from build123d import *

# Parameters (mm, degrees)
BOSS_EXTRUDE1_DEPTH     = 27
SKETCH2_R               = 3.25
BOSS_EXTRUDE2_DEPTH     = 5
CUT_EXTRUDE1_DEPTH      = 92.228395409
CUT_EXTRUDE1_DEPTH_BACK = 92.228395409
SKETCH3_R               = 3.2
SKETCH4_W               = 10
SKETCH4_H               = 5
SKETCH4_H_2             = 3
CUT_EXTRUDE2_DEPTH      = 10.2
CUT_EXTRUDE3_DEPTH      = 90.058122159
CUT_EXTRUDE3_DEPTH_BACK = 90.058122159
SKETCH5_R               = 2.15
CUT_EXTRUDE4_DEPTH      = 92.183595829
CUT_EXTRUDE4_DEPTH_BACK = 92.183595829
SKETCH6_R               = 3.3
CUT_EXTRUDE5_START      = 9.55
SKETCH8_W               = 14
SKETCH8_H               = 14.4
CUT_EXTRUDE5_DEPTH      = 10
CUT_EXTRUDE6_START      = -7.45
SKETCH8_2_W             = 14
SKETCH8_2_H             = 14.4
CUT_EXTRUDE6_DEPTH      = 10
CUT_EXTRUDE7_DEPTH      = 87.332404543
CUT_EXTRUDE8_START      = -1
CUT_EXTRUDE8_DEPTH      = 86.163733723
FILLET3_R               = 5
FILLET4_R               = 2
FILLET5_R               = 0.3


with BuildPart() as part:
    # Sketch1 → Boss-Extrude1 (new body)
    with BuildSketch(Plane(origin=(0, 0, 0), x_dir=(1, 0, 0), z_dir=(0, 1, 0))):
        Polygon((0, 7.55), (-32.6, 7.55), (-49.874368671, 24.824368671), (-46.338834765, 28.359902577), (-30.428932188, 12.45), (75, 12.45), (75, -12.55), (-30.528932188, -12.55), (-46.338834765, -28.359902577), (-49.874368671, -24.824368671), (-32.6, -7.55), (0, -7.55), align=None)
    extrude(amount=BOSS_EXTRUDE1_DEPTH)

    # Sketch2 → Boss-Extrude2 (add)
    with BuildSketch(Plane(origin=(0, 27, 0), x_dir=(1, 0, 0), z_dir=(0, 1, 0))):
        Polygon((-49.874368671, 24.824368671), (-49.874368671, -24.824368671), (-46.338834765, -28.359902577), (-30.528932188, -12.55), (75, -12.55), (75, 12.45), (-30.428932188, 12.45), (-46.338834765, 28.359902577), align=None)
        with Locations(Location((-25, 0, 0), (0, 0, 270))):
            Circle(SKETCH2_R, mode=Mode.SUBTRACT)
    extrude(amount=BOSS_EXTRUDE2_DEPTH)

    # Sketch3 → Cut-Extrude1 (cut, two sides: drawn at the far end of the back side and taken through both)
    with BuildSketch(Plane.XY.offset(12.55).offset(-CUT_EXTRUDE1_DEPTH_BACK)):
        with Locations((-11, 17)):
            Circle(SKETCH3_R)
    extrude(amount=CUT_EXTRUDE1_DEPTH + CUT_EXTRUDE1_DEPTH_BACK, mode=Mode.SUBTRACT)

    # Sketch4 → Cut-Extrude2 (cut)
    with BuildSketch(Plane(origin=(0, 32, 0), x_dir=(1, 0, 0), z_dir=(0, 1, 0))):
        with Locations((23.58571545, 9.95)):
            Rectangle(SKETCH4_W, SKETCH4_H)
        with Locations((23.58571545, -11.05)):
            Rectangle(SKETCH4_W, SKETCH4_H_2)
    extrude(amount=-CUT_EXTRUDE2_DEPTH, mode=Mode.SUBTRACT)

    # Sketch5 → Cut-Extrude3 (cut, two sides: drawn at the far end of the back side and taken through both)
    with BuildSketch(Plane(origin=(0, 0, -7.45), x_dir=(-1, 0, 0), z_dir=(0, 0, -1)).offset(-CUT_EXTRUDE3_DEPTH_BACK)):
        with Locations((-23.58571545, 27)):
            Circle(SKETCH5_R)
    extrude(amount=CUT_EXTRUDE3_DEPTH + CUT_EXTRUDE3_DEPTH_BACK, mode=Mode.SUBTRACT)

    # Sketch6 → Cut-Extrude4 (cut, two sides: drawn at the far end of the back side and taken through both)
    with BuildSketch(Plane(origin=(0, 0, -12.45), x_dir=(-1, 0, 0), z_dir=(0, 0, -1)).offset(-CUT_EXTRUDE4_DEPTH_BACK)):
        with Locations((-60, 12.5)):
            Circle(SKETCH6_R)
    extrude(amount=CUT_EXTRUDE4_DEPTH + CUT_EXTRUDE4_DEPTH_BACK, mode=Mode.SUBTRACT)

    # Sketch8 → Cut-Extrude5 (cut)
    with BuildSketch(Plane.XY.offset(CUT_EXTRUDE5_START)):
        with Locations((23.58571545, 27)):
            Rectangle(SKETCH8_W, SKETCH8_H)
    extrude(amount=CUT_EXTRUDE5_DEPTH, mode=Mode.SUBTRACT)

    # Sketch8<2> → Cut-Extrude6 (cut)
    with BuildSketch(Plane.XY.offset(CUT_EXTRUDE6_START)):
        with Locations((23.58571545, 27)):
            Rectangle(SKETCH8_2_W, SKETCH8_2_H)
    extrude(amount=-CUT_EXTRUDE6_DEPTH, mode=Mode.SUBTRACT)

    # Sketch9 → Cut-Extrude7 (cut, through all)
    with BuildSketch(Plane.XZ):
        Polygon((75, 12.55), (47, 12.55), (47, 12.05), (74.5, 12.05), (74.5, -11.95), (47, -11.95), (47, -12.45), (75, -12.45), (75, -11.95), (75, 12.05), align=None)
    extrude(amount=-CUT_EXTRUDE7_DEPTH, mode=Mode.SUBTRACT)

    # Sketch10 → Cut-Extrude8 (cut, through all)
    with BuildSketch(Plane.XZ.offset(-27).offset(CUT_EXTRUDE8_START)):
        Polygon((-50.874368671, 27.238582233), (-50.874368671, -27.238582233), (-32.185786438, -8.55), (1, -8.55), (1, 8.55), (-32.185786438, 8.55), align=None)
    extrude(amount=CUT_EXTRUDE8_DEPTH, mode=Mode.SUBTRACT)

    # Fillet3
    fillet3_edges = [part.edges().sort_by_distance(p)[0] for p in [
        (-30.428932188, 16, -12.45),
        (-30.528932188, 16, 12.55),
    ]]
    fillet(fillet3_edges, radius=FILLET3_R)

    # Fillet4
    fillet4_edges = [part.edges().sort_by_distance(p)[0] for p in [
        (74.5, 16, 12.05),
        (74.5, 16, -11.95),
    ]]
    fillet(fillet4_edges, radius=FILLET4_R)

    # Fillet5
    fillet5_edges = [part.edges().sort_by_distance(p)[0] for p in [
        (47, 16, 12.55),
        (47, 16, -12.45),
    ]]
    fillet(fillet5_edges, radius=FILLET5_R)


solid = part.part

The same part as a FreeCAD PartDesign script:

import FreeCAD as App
import Part
import Sketcher

V = App.Vector


def edges_at(feature, points):
    """Names of the edges that pass closest to the given points."""
    edges = feature.Shape.Edges
    near = lambda p: min(range(len(edges)), key=lambda i: edges[i].distToShape(Part.Vertex(*p))[0])
    return sorted({f"Edge{near(p) + 1}" for p in points})


def add_polygon(sketch, points):
    """Adds a closed chain of lines whose ends are joined by coincident constraints."""
    first, n = sketch.GeometryCount, len(points)
    for a, b in zip(points, points[1:] + points[:1]):
        sketch.addGeometry(Part.LineSegment(App.Vector(*a, 0), App.Vector(*b, 0)), False)
    for i in range(n):
        sketch.addConstraint(Sketcher.Constraint("Coincident", first + i, 2, first + (i + 1) % n, 1))

doc = App.newDocument("Part")
body = doc.addObject("PartDesign::Body", "Body")

# Sketch on XZ plane
sketch1 = body.newObject("Sketcher::SketchObject", "Sketch")
sketch1.AttachmentSupport = (doc.getObject("XZ_Plane"), [""])
sketch1.MapMode = "FlatFace"
add_polygon(sketch1, [(-33, -8), (0, -8), (0, 8), (-33, 8), (-50, 25), (-46, 28), (-31, 13), (75, 13), (75, -12), (-30, -12), (-46, -28), (-50, -25)])  # lines 0-11
sketch1.addConstraint([
    Sketcher.Constraint("Horizontal", 0),
    Sketcher.Constraint("Vertical", 1),
    Sketcher.Constraint("Horizontal", 2),
    Sketcher.Constraint("Horizontal", 6),
    Sketcher.Constraint("Vertical", 7),
    Sketcher.Constraint("Horizontal", 8),
    Sketcher.Constraint("Symmetric", 0, 2, 1, 2, -1, 1),
    Sketcher.Constraint("Symmetric", 4, 2, 9, 2, -1),
    Sketcher.Constraint("Symmetric", 3, 2, 10, 2, -1),
    Sketcher.Constraint("Perpendicular", 3, 4),
    Sketcher.Constraint("Perpendicular", 4, 5),
    Sketcher.Constraint("Perpendicular", 5, 9),
    Sketcher.Constraint("Perpendicular", 9, 10),
    Sketcher.Constraint("Perpendicular", 10, 11),
    Sketcher.Constraint("DistanceY", 7, 2, 7, 1, 25.0),
    Sketcher.Constraint("Distance", 4, 5.0),
    Sketcher.Constraint("DistanceX", 0, 1, 0, 2, 32.6),
    Sketcher.Constraint("DistanceY", 1, 1, 1, 2, 15.1),
    Sketcher.Constraint("DistanceX", -1, 1, 6, 2, 75.0),
    Sketcher.Constraint("DistanceY", 2, 2, 5, 2, 5.0),
    Sketcher.Constraint("Distance", 9, 22.5),
])
pad1 = body.newObject("PartDesign::Pad", "Pad")
pad1.Profile = sketch1
pad1.Length = 27
pad1.Reversed = True

# Sketch on XZ plane
sketch2 = body.newObject("Sketcher::SketchObject", "Sketch001")
sketch2.AttachmentSupport = (doc.getObject("XZ_Plane"), [""])
sketch2.MapMode = "FlatFace"
sketch2.AttachmentOffset = App.Placement(V(0, 0, -27), App.Rotation())
add_polygon(sketch2, [(-49.9, -24.8), (-49.9, 24.8), (-46.3, 28.4), (-30.5, 12.6), (75, 12.6), (75, -12.4), (-30.4, -12.4), (-46.3, -28.4)])  # lines 0-7
sketch2.addGeometry(Part.Circle(V(-25, 0, 0), V(0, 0, 1), 3.2), False)  # 8
sketch2.addConstraint([
    Sketcher.Constraint("Vertical", 0),
    Sketcher.Constraint("Horizontal", 3),
    Sketcher.Constraint("Vertical", 4),
    Sketcher.Constraint("Horizontal", 5),
    Sketcher.Constraint("Symmetric", 1, 2, 6, 2, -1),
    Sketcher.Constraint("PointOnObject", 8, 3, -1),
    Sketcher.Constraint("Perpendicular", 1, 2),
    Sketcher.Constraint("Perpendicular", 2, 6),
    Sketcher.Constraint("Perpendicular", 6, 7),
    Sketcher.Constraint("Equal", 1, 7),
    Sketcher.Constraint("Diameter", 8, 6.5),
    Sketcher.Constraint("DistanceY", 4, 2, 4, 1, 25.0),
    Sketcher.Constraint("Distance", 1, 5.0),
    Sketcher.Constraint("DistanceX", 8, 3, -1, 1, 25.0),
    Sketcher.Constraint("DistanceX", -1, 1, 3, 2, 75.0),
    Sketcher.Constraint("Distance", 6, 22.5),
    Sketcher.Constraint("DistanceX", 2, 2, 5, 2, 0.1),
    Sketcher.Constraint("DistanceX", 3, 1, 3, 2, 105.528932),
])
pad2 = body.newObject("PartDesign::Pad", "Pad001")
pad2.Profile = sketch2
pad2.Length = 5
pad2.Reversed = True

# Sketch on XY plane
sketch3 = body.newObject("Sketcher::SketchObject", "Sketch002")
sketch3.AttachmentSupport = (doc.getObject("XY_Plane"), [""])
sketch3.MapMode = "FlatFace"
sketch3.AttachmentOffset = App.Placement(V(0, 0, 12.55), App.Rotation())
sketch3.addGeometry(Part.Circle(V(-11, 17, 0), V(0, 0, 1), 3.2), False)
sketch3.addConstraint([
    Sketcher.Constraint("Diameter", 0, 6.4),
    Sketcher.Constraint("DistanceX", 0, 3, -1, 1, 11.0),
    Sketcher.Constraint("DistanceY", -1, 1, 0, 3, 17.0),
])
pocket1 = body.newObject("PartDesign::Pocket", "Pocket")
pocket1.Profile = sketch3
pocket1.Type = "ThroughAll"
pocket1.Midplane = True

# Sketch on XZ plane
sketch4 = body.newObject("Sketcher::SketchObject", "Sketch003")
sketch4.AttachmentSupport = (doc.getObject("XZ_Plane"), [""])
sketch4.MapMode = "FlatFace"
sketch4.AttachmentOffset = App.Placement(V(0, 0, -32), App.Rotation())
add_polygon(sketch4, [(18.6, -12.4), (18.6, -7.5), (28.6, -7.5), (28.6, -12.4)])  # lines 0-3
add_polygon(sketch4, [(18.6, 9.6), (18.6, 12.6), (28.6, 12.6), (28.6, 9.6)])  # lines 4-7
sketch4.addConstraint([
    Sketcher.Constraint("Vertical", 0),
    Sketcher.Constraint("Horizontal", 1),
    Sketcher.Constraint("Vertical", 2),
    Sketcher.Constraint("Horizontal", 3),
    Sketcher.Constraint("Vertical", 4),
    Sketcher.Constraint("Horizontal", 5),
    Sketcher.Constraint("Vertical", 6),
    Sketcher.Constraint("Horizontal", 7),
    Sketcher.Constraint("Vertical", 3, 2, 4, 2),
    Sketcher.Constraint("Vertical", 2, 2, 5, 2),
    Sketcher.Constraint("DistanceX", 1, 1, 1, 2, 10.0),
    Sketcher.Constraint("DistanceY", 0, 1, 0, 2, 5.0),
    Sketcher.Constraint("DistanceY", 4, 1, 4, 2, 3.0),
    Sketcher.Constraint("DistanceY", 0, 2, 4, 2, 20.0),
    Sketcher.Constraint("DistanceY", 0, 2, -1, 1, 7.45),
    Sketcher.Constraint("DistanceX", -1, 1, 0, 2, 18.585715),
])
pocket2 = body.newObject("PartDesign::Pocket", "Pocket001")
pocket2.Profile = sketch4
pocket2.Length = 10.2
pocket2.Reversed = True

# Sketch on XY plane
sketch5 = body.newObject("Sketcher::SketchObject", "Sketch004")
sketch5.AttachmentSupport = (doc.getObject("XY_Plane"), [""])
sketch5.MapMode = "FlatFace"
sketch5.AttachmentOffset = App.Placement(V(0, 0, -7.45), App.Rotation())
sketch5.addGeometry(Part.Circle(V(23.6, 27, 0), V(0, 0, 1), 2.1), False)
sketch5.addConstraint([
    Sketcher.Constraint("Diameter", 0, 4.3),
    Sketcher.Constraint("DistanceY", -1, 1, 0, 3, 27.0),
    Sketcher.Constraint("DistanceX", -1, 1, 0, 3, 23.585715),
])
pocket3 = body.newObject("PartDesign::Pocket", "Pocket002")
pocket3.Profile = sketch5
pocket3.Type = "ThroughAll"
pocket3.Midplane = True

# Sketch on XY plane
sketch6 = body.newObject("Sketcher::SketchObject", "Sketch005")
sketch6.AttachmentSupport = (doc.getObject("XY_Plane"), [""])
sketch6.MapMode = "FlatFace"
sketch6.AttachmentOffset = App.Placement(V(0, 0, -12.45), App.Rotation())
sketch6.addGeometry(Part.Circle(V(60, 12.5, 0), V(0, 0, 1), 3.3), False)
sketch6.addConstraint([
    Sketcher.Constraint("Diameter", 0, 6.6),
    Sketcher.Constraint("DistanceX", -1, 1, 0, 3, 60.0),
    Sketcher.Constraint("DistanceY", -1, 1, 0, 3, 12.5),
])
pocket4 = body.newObject("PartDesign::Pocket", "Pocket003")
pocket4.Profile = sketch6
pocket4.Type = "ThroughAll"
pocket4.Midplane = True

# Sketch on XY plane
sketch7 = body.newObject("Sketcher::SketchObject", "Sketch006")
sketch7.AttachmentSupport = (doc.getObject("XY_Plane"), [""])
sketch7.MapMode = "FlatFace"
sketch7.AttachmentOffset = App.Placement(V(0, 0, 9.55), App.Rotation())
add_polygon(sketch7, [(17, 34), (17, 20), (31, 20), (31, 34)])  # lines 0-3
sketch7.addConstraint([
    Sketcher.Constraint("Vertical", 0),
    Sketcher.Constraint("Horizontal", 1),
    Sketcher.Constraint("Vertical", 2),
    Sketcher.Constraint("Horizontal", 3),
    Sketcher.Constraint("DistanceX", 1, 1, 1, 2, 14.0),
    Sketcher.Constraint("DistanceY", 0, 2, 0, 1, 14.4),
    Sketcher.Constraint("DistanceY", -1, 1, 0, 2, 19.8),
    Sketcher.Constraint("DistanceX", -1, 1, 0, 2, 16.585715),
])
pocket5 = body.newObject("PartDesign::Pocket", "Pocket004")
pocket5.Profile = sketch7
pocket5.Length = 10
pocket5.Reversed = True

# Sketch on XY plane
sketch8 = body.newObject("Sketcher::SketchObject", "Sketch007")
sketch8.AttachmentSupport = (doc.getObject("XY_Plane"), [""])
sketch8.MapMode = "FlatFace"
sketch8.AttachmentOffset = App.Placement(V(0, 0, -7.45), App.Rotation())
add_polygon(sketch8, [(17, 34), (17, 20), (31, 20), (31, 34)])  # lines 0-3
sketch8.addConstraint([
    Sketcher.Constraint("Vertical", 0),
    Sketcher.Constraint("Horizontal", 1),
    Sketcher.Constraint("Vertical", 2),
    Sketcher.Constraint("Horizontal", 3),
    Sketcher.Constraint("DistanceX", 1, 1, 1, 2, 14.0),
    Sketcher.Constraint("DistanceY", 0, 2, 0, 1, 14.4),
    Sketcher.Constraint("DistanceY", -1, 1, 0, 2, 19.8),
    Sketcher.Constraint("DistanceX", -1, 1, 0, 2, 16.585715),
])
pocket6 = body.newObject("PartDesign::Pocket", "Pocket005")
pocket6.Profile = sketch8
pocket6.Length = 10

# Sketch on XZ plane
sketch9 = body.newObject("Sketcher::SketchObject", "Sketch008")
sketch9.AttachmentSupport = (doc.getObject("XZ_Plane"), [""])
sketch9.MapMode = "FlatFace"
add_polygon(sketch9, [(75, 12.6), (47, 12.6), (47, 12.1), (74.5, 12.1), (74.5, -11.9), (47, -11.9), (47, -12.4), (75, -12.4)])  # lines 0-7
sketch9.addConstraint([
    Sketcher.Constraint("Horizontal", 0),
    Sketcher.Constraint("Vertical", 1),
    Sketcher.Constraint("Horizontal", 2),
    Sketcher.Constraint("Vertical", 3),
    Sketcher.Constraint("Horizontal", 4),
    Sketcher.Constraint("Vertical", 5),
    Sketcher.Constraint("Horizontal", 6),
    Sketcher.Constraint("Vertical", 7),
    Sketcher.Constraint("Vertical", 1, 2, 4, 2),
    Sketcher.Constraint("Equal", 1, 5),
    Sketcher.Constraint("DistanceX", 0, 2, 0, 1, 28.0),
    Sketcher.Constraint("DistanceY", 3, 2, 3, 1, 24.0),
    Sketcher.Constraint("DistanceY", 7, 1, 7, 2, 25.0),
    Sketcher.Constraint("DistanceX", 2, 1, 2, 2, 27.5),
    Sketcher.Constraint("DistanceX", -1, 1, 0, 2, 47.0),
    Sketcher.Constraint("DistanceY", -1, 1, 0, 2, 12.55),
])
pocket7 = body.newObject("PartDesign::Pocket", "Pocket006")
pocket7.Profile = sketch9
pocket7.Type = "ThroughAll"

# Sketch on XZ plane
sketch10 = body.newObject("Sketcher::SketchObject", "Sketch009")
sketch10.AttachmentSupport = (doc.getObject("XZ_Plane"), [""])
sketch10.MapMode = "FlatFace"
sketch10.AttachmentOffset = App.Placement(V(0, 0, -28), App.Rotation())
add_polygon(sketch10, [(-51, 27), (-51, -27), (-32, -9), (1, -9), (1, 9), (-32, 9)])  # lines 0-5
sketch10.addConstraint([
    Sketcher.Constraint("Vertical", 0),
    Sketcher.Constraint("Horizontal", 2),
    Sketcher.Constraint("Vertical", 3),
    Sketcher.Constraint("Horizontal", 4),
    Sketcher.Constraint("Symmetric", 1, 2, 4, 2, -1),
    Sketcher.Constraint("Perpendicular", 1, 5),
    Sketcher.Constraint("Equal", 1, 5),
    Sketcher.Constraint("DistanceY", 3, 1, 3, 2, 17.1),
    Sketcher.Constraint("DistanceX", -1, 1, 2, 2, 1.0),
    Sketcher.Constraint("DistanceX", 2, 1, 2, 2, 33.185786),
    Sketcher.Constraint("DistanceY", 0, 2, 0, 1, 54.477164),
])
pocket8 = body.newObject("PartDesign::Pocket", "Pocket007")
pocket8.Profile = sketch10
pocket8.Type = "ThroughAll"
pocket8.Reversed = True
doc.recompute()

fillet = body.newObject("PartDesign::Fillet", "Fillet")
fillet.Base = (pocket8, edges_at(pocket8, [(-30.429, 16, -12.45), (-30.529, 16, 12.55)]))
fillet.Radius = 5
doc.recompute()

fillet2 = body.newObject("PartDesign::Fillet", "Fillet001")
fillet2.Base = (fillet, edges_at(fillet, [(74.5, 16, 12.05), (74.5, 16, -11.95)]))
fillet2.Radius = 2
doc.recompute()

fillet3 = body.newObject("PartDesign::Fillet", "Fillet002")
fillet3.Base = (fillet2, edges_at(fillet2, [(47, 16, 12.55), (47, 16, -12.45)]))
fillet3.Radius = 0.3

doc.recompute()
